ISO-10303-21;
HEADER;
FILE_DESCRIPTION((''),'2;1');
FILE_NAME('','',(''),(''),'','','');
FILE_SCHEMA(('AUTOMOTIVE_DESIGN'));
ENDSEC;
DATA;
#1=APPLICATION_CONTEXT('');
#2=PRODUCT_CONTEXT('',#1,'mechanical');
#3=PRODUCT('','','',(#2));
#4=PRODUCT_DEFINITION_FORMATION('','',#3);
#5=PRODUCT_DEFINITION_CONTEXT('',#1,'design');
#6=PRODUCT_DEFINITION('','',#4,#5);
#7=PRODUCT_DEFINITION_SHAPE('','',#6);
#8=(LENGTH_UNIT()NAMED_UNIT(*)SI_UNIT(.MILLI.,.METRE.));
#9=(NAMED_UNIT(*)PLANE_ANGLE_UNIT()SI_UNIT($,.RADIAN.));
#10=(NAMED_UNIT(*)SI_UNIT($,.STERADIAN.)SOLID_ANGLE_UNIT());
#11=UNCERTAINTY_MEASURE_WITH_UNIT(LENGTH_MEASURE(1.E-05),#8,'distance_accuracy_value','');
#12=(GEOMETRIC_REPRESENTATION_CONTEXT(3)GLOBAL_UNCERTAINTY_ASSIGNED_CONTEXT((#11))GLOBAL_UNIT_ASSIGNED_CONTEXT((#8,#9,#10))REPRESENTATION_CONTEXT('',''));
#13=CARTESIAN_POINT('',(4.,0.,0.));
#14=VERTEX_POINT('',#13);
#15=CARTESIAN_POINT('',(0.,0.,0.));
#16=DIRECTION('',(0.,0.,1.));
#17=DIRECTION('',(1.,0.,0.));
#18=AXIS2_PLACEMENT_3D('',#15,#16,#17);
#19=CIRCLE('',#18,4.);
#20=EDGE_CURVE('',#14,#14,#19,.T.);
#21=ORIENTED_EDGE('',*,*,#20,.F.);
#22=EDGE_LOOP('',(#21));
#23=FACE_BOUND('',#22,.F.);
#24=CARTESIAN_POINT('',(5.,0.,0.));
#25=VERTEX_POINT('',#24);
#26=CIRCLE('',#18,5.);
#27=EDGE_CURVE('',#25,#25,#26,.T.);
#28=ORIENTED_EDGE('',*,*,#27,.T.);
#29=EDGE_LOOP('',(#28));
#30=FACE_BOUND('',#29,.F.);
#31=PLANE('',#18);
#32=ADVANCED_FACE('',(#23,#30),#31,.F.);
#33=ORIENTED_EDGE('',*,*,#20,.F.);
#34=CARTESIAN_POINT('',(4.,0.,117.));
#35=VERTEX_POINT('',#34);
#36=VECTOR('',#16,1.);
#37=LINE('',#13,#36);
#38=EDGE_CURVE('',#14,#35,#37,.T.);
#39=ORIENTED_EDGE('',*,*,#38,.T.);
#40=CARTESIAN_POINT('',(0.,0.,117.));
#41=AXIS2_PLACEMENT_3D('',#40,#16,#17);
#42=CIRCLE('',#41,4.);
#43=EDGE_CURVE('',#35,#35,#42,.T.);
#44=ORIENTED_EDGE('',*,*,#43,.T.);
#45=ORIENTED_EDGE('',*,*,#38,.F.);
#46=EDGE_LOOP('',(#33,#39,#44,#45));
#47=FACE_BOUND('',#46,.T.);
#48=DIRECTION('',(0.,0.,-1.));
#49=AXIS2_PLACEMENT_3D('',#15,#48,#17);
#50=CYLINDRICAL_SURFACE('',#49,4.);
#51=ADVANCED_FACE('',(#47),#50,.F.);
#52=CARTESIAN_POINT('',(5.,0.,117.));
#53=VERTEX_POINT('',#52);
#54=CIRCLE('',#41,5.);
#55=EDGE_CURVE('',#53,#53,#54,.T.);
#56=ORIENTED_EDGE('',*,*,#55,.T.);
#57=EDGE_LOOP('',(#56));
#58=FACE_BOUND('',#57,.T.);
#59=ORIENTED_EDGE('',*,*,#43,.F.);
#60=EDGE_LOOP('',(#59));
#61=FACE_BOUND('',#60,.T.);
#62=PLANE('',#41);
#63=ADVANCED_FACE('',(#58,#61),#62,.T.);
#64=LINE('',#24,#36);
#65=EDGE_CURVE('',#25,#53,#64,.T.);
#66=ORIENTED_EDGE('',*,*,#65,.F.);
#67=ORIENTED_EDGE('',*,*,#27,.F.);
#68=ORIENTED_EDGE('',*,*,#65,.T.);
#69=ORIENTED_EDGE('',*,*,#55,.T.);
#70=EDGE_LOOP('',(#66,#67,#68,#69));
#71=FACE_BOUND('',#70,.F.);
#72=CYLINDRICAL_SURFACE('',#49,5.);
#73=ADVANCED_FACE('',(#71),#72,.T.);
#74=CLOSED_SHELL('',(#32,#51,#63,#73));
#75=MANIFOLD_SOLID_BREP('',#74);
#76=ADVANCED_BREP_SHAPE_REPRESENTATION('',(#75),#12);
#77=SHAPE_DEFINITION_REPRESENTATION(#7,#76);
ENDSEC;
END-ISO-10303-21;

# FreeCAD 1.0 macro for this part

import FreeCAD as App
import Part
import Sketcher
from FreeCAD import Vector
Q = App.Units.Quantity

doc = App.newDocument("Part")
body = doc.addObject("PartDesign::Body", "Body")

sketch1 = doc.addObject("Sketcher::SketchObject", "Sketch")
body.addObject(sketch1)
sketch1.AttachmentSupport = (doc.XY_Plane, [""])
sketch1.MapMode = "FlatFace"
sketch1.addGeometry(Part.Circle(Vector(0, 0, 0), Vector(0, 0, 1), 5), False)
sketch1.addGeometry(Part.Circle(Vector(0, 0, 0), Vector(0, 0, 1), 4), False)
sketch1.addConstraint(Sketcher.Constraint("Coincident", 0, 3, -1, 1))
sketch1.addConstraint(Sketcher.Constraint("Coincident", 1, 3, -1, 1))
sketch1.addConstraint(Sketcher.Constraint("Diameter", 0, Q("10 mm")))
sketch1.addConstraint(Sketcher.Constraint("Diameter", 1, Q("8 mm")))
pad1 = doc.addObject("PartDesign::Pad", "Pad")
body.addObject(pad1)
pad1.Profile = sketch1
pad1.Length = 117

doc.recompute()
